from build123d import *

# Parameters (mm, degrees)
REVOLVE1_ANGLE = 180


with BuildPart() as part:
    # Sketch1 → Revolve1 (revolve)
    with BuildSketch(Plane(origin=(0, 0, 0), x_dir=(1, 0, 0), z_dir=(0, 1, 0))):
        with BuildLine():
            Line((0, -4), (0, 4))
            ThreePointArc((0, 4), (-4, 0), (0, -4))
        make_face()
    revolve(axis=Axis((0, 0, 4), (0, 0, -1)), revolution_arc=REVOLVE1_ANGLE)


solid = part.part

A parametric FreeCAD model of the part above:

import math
import FreeCAD as App
import Part
import Sketcher

doc = App.newDocument("Part")
body = doc.addObject("PartDesign::Body", "Body")

# Sketch on XZ plane
sketch1 = body.newObject("Sketcher::SketchObject", "Sketch")
sketch1.AttachmentSupport = (doc.getObject("XZ_Plane"), [""])
sketch1.MapMode = "FlatFace"
sketch1.addGeometry([
    Part.LineSegment(App.Vector(0, 4, 0), App.Vector(0, -4, 0)),
    Part.ArcOfCircle(Part.Circle(App.Vector(0, 0, 0), App.Vector(0, 0, 1), 4), math.radians(90), math.radians(270)),
], False)
sketch1.addConstraint([
    Sketcher.Constraint("Coincident", 0, 1, 1, 1),
    Sketcher.Constraint("Coincident", 1, 2, 0, 2),
    Sketcher.Constraint("Vertical", 0),
    Sketcher.Constraint("Coincident", 1, 3, -1, 1),
    Sketcher.Constraint("PointOnObject", 0, 1, -2),
    Sketcher.Constraint("Radius", 1, 4.0),
])
revolution = body.newObject("PartDesign::Revolution", "Revolution")
revolution.Profile = sketch1
revolution.ReferenceAxis = (sketch1, ["V_Axis"])
revolution.Angle = 180
revolution.Reversed = True

doc.recompute()
